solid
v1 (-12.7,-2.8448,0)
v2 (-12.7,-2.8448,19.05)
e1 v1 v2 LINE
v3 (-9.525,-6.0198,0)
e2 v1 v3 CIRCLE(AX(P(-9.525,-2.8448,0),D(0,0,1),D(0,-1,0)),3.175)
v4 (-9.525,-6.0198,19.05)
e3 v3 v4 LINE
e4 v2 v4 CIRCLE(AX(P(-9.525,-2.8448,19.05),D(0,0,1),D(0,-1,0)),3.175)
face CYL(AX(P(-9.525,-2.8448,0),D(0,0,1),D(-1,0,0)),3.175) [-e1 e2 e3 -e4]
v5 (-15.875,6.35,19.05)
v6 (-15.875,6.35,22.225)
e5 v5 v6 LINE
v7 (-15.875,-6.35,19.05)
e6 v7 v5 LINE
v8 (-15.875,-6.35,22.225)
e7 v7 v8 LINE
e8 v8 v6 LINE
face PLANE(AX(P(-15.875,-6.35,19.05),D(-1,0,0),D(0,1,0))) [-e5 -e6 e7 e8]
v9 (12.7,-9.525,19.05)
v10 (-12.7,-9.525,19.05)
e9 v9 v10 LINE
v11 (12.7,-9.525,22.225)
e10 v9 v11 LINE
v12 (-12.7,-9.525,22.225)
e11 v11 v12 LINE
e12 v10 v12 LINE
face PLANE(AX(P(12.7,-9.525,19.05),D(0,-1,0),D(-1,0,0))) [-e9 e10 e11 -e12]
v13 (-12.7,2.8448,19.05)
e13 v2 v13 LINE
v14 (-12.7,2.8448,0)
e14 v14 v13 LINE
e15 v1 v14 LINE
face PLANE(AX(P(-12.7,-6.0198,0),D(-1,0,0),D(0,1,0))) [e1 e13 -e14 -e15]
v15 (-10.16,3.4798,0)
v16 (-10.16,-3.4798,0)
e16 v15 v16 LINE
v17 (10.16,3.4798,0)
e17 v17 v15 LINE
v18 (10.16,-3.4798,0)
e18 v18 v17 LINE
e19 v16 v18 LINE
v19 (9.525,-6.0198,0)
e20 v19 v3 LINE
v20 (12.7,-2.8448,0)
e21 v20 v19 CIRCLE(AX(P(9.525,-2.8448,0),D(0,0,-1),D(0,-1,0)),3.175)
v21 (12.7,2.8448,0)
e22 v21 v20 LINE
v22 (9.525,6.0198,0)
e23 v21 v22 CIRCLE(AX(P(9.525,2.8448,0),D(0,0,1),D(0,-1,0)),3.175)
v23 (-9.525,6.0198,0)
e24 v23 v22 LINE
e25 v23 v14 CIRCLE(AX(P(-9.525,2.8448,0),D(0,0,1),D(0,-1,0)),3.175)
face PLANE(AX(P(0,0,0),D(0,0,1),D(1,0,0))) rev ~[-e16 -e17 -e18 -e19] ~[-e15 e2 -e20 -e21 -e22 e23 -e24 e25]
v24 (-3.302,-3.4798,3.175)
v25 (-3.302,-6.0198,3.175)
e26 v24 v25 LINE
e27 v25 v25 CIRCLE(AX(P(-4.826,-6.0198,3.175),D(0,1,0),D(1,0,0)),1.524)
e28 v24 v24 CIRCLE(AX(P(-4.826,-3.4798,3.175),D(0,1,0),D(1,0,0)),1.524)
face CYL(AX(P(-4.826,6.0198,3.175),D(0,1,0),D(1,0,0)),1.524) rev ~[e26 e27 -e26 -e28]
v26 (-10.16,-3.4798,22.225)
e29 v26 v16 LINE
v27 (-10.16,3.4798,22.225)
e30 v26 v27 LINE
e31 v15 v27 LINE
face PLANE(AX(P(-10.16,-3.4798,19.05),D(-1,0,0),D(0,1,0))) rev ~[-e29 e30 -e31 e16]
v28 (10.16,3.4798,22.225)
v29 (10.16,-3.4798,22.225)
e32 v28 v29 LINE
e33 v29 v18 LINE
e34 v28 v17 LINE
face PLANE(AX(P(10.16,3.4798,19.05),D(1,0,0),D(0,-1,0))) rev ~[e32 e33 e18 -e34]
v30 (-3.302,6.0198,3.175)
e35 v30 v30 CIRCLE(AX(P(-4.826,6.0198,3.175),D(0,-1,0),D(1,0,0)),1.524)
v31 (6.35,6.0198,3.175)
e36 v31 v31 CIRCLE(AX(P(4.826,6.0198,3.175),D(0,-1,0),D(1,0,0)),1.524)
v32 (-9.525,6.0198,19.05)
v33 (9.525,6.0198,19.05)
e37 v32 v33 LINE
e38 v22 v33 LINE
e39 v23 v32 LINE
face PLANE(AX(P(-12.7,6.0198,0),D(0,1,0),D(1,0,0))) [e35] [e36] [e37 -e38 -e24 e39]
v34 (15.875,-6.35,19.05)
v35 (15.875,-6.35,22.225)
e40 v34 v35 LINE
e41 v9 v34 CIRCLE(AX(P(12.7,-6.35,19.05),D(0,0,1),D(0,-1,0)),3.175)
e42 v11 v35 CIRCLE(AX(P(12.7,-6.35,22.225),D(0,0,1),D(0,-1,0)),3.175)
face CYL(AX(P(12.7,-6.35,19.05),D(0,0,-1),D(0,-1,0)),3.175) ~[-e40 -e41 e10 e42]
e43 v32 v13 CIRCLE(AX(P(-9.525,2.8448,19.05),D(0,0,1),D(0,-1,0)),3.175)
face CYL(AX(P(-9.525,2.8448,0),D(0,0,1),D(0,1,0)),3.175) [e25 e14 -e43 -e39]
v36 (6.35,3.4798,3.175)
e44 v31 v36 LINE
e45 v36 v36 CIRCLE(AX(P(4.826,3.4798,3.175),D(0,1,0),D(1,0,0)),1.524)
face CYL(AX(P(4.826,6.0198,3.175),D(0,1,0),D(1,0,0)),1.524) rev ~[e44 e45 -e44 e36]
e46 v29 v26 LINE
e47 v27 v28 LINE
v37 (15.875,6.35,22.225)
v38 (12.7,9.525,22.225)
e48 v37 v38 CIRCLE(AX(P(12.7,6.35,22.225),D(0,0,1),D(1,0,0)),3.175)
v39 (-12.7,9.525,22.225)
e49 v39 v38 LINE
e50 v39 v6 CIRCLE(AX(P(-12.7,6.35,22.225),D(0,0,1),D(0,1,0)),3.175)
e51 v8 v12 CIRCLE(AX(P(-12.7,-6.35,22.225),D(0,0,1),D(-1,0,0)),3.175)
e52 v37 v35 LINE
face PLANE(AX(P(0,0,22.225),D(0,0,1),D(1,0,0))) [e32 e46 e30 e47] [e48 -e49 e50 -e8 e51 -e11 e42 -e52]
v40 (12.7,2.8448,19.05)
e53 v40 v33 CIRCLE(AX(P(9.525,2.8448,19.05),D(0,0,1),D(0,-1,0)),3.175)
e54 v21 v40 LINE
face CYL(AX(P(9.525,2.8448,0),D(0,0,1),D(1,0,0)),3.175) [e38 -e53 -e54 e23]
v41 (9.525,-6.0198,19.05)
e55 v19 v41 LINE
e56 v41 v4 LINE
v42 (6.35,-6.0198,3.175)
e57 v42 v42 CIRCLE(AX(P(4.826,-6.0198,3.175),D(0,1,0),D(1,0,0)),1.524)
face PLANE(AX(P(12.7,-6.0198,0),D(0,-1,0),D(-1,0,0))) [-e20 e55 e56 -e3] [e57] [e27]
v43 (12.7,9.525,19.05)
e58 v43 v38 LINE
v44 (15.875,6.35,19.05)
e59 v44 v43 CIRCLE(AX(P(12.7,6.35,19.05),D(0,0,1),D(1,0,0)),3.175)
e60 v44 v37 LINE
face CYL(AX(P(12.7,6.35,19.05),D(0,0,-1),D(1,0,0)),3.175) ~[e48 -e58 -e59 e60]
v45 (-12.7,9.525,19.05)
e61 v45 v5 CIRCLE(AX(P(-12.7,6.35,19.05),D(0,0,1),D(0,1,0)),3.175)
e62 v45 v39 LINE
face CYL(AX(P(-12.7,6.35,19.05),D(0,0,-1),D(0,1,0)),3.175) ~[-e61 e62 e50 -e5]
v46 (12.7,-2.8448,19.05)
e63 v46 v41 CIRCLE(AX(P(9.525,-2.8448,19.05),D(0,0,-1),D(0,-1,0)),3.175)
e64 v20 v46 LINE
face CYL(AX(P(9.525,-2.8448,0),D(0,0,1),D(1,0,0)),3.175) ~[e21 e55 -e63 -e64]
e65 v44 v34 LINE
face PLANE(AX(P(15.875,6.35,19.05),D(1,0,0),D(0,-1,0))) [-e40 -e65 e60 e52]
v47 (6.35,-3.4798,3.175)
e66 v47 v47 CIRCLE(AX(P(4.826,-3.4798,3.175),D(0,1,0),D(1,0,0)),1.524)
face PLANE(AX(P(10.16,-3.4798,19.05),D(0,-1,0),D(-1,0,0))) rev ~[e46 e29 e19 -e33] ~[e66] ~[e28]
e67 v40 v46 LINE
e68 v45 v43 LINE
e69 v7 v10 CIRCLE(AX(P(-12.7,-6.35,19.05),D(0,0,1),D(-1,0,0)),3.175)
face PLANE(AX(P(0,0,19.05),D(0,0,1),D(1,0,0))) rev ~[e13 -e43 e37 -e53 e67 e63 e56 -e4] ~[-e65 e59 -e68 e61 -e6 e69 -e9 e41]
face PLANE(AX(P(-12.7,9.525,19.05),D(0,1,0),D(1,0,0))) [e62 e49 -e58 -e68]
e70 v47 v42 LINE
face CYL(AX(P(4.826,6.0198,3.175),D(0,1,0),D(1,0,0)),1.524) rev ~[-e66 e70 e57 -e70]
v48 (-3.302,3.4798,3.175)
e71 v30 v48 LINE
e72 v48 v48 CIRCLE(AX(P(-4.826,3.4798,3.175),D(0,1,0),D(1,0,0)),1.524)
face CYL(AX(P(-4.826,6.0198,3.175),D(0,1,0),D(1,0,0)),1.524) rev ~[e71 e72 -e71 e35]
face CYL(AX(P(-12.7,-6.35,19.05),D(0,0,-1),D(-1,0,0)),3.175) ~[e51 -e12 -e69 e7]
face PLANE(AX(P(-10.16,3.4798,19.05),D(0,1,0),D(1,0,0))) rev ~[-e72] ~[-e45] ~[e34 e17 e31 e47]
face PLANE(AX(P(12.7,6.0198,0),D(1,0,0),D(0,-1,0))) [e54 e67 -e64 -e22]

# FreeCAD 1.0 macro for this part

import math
import FreeCAD as App
import Part
import Sketcher

V = App.Vector
Q = App.Units.Quantity


def edges_at(feature, points):
    """Names of the edges that pass closest to the given points."""
    edges = feature.Shape.Edges
    near = lambda p: min(range(len(edges)), key=lambda i: edges[i].distToShape(Part.Vertex(*p))[0])
    return sorted({f"Edge{near(p) + 1}" for p in points})


def faces_at(feature, points):
    """Names of the faces that lie closest to the given points."""
    faces = feature.Shape.Faces
    near = lambda p: min(range(len(faces)), key=lambda i: faces[i].distToShape(Part.Vertex(*p))[0])
    return sorted({f"Face{near(p) + 1}" for p in points})


def add_polygon(sketch, points):
    """Adds a closed chain of lines whose ends are joined by coincident constraints."""
    first, n = sketch.GeometryCount, len(points)
    for a, b in zip(points, points[1:] + points[:1]):
        sketch.addGeometry(Part.LineSegment(App.Vector(*a, 0), App.Vector(*b, 0)), False)
    for i in range(n):
        sketch.addConstraint(Sketcher.Constraint("Coincident", first + i, 2, first + (i + 1) % n, 1))

doc = App.newDocument("Part")
body = doc.addObject("PartDesign::Body", "Body")

sketch1 = body.newObject("Sketcher::SketchObject", "Sketch")
sketch1.AttachmentSupport = (doc.getObject("XY_Plane"), [""])
sketch1.MapMode = "FlatFace"
add_polygon(sketch1, [(-13, -6), (13, -6), (13, 6), (-13, 6)])
sketch1.addConstraint([
    Sketcher.Constraint("Horizontal", 0),
    Sketcher.Constraint("Vertical", 1),
    Sketcher.Constraint("Horizontal", 2),
    Sketcher.Constraint("Vertical", 3),
    Sketcher.Constraint("Symmetric", 0, 2, 2, 2, -1, 1),
    Sketcher.Constraint("DistanceX", 0, 1, 0, 2, Q("1 in")),
    Sketcher.Constraint("DistanceY", 1, 1, 1, 2, Q("0.474 in")),
])
pad1 = body.newObject("PartDesign::Pad", "Pad")
pad1.Profile = sketch1
pad1.Length = Q("0.75 in")
doc.recompute()

thickness = body.newObject("PartDesign::Thickness", "Thickness")
thickness.Base = (pad1, faces_at(pad1, [(4.233, -2.007, 0), (4.233, -2.007, 19.05)]))
thickness.Value = Q("0.1 in")
thickness.Reversed = True
thickness.Join = "Intersection"

sketch2 = body.newObject("Sketcher::SketchObject", "Sketch001")
sketch2.AttachmentSupport = (doc.getObject("XZ_Plane"), [""])
sketch2.MapMode = "FlatFace"
sketch2.AttachmentOffset = App.Placement(V(0, 0, -0.237 * 25.4), App.Rotation())
sketch2.addGeometry([
    Part.Circle(V(-4.8, 3.2, 0), V(0, 0, 1), 1.5),
    Part.Circle(V(4.8, 3.2, 0), V(0, 0, 1), 1.5),
], False)
sketch2.addConstraint([
    Sketcher.Constraint("Equal", 0, 1),
    Sketcher.Constraint("Symmetric", 0, 3, 1, 3, -2),
    Sketcher.Constraint("Diameter", 0, Q("0.12 in")),
    Sketcher.Constraint("DistanceX", 0, 3, 1, 3, Q("0.38 in")),
    Sketcher.Constraint("DistanceY", -1, 1, 0, 3, Q("0.125 in")),
])
pocket1 = body.newObject("PartDesign::Pocket", "Pocket")
pocket1.Profile = sketch2
pocket1.Type = "ThroughAll"
pocket1.Reversed = True

sketch3 = body.newObject("Sketcher::SketchObject", "Sketch002")
sketch3.AttachmentSupport = (doc.getObject("XY_Plane"), [""])
sketch3.MapMode = "FlatFace"
sketch3.AttachmentOffset = App.Placement(V(0, 0, 0.75 * 25.4), App.Rotation())
sketch3.addGeometry(Part.LineSegment(V(12.7, 9.5, 0), V(-12.7, 9.5, 0)), False)
sketch3.addGeometry(Part.ArcOfCircle(Part.Circle(V(-12.7, 6.3, 0), V(0, 0, 1), 3.2), math.radians(90), math.radians(180)), False)
sketch3.addGeometry(Part.LineSegment(V(-15.9, 6.3, 0), V(-15.9, -6.3, 0)), False)
sketch3.addGeometry(Part.ArcOfCircle(Part.Circle(V(-12.7, -6.3, 0), V(0, 0, 1), 3.2), math.radians(180), math.radians(270)), False)
sketch3.addGeometry(Part.LineSegment(V(-12.7, -9.5, 0), V(12.7, -9.5, 0)), False)
sketch3.addGeometry(Part.ArcOfCircle(Part.Circle(V(12.7, -6.3, 0), V(0, 0, 1), 3.2), math.radians(-90), math.radians(0)), False)
sketch3.addGeometry(Part.LineSegment(V(15.9, -6.3, 0), V(15.9, 6.3, 0)), False)
sketch3.addGeometry(Part.ArcOfCircle(Part.Circle(V(12.7, 6.3, 0), V(0, 0, 1), 3.2), math.radians(0), math.radians(90)), False)
add_polygon(sketch3, [(-10.2, -3.5), (-10.2, 3.5), (10.2, 3.5), (10.2, -3.5)])
sketch3.addConstraint([
    Sketcher.Constraint("Tangent", 0, 2, 1, 1),
    Sketcher.Constraint("Tangent", 1, 2, 2, 1),
    Sketcher.Constraint("Tangent", 2, 2, 3, 1),
    Sketcher.Constraint("Tangent", 3, 2, 4, 1),
    Sketcher.Constraint("Tangent", 4, 2, 5, 1),
    Sketcher.Constraint("Tangent", 5, 2, 6, 1),
    Sketcher.Constraint("Tangent", 6, 2, 7, 1),
    Sketcher.Constraint("Tangent", 7, 2, 0, 1),
    Sketcher.Constraint("Horizontal", 0),
    Sketcher.Constraint("Vertical", 2),
    Sketcher.Constraint("Horizontal", 4),
    Sketcher.Constraint("Vertical", 6),
    Sketcher.Constraint("Vertical", 8),
    Sketcher.Constraint("Horizontal", 9),
    Sketcher.Constraint("Vertical", 10),
    Sketcher.Constraint("Horizontal", 11),
    Sketcher.Constraint("Equal", 1, 3),
    Sketcher.Constraint("Equal", 3, 5),
    Sketcher.Constraint("Equal", 5, 7),
    Sketcher.Constraint("Symmetric", 1, 3, 5, 3, -1, 1),
    Sketcher.Constraint("Symmetric", 8, 2, 10, 2, -1, 1),
    Sketcher.Constraint("Radius", 1, Q("0.125 in")),
    Sketcher.Constraint("DistanceX", 0, 2, 0, 1, Q("1 in")),
    Sketcher.Constraint("DistanceY", 3, 2, 0, 2, Q("0.75 in")),
    Sketcher.Constraint("DistanceX", 9, 1, 9, 2, Q("0.8 in")),
    Sketcher.Constraint("DistanceY", 8, 1, 8, 2, Q("0.274 in")),
])
pad2 = body.newObject("PartDesign::Pad", "Pad001")
pad2.Profile = sketch3
pad2.Length = Q("0.125 in")
doc.recompute()

fillet = body.newObject("PartDesign::Fillet", "Fillet")
fillet.Base = (pad2, edges_at(pad2, [
    (12.7, 6.02, 9.525),
    (12.7, -6.02, 9.525),
    (-12.7, 6.02, 9.525),
    (-12.7, -6.02, 9.525),
]))
fillet.Radius = Q("0.125 in")

doc.recompute()
